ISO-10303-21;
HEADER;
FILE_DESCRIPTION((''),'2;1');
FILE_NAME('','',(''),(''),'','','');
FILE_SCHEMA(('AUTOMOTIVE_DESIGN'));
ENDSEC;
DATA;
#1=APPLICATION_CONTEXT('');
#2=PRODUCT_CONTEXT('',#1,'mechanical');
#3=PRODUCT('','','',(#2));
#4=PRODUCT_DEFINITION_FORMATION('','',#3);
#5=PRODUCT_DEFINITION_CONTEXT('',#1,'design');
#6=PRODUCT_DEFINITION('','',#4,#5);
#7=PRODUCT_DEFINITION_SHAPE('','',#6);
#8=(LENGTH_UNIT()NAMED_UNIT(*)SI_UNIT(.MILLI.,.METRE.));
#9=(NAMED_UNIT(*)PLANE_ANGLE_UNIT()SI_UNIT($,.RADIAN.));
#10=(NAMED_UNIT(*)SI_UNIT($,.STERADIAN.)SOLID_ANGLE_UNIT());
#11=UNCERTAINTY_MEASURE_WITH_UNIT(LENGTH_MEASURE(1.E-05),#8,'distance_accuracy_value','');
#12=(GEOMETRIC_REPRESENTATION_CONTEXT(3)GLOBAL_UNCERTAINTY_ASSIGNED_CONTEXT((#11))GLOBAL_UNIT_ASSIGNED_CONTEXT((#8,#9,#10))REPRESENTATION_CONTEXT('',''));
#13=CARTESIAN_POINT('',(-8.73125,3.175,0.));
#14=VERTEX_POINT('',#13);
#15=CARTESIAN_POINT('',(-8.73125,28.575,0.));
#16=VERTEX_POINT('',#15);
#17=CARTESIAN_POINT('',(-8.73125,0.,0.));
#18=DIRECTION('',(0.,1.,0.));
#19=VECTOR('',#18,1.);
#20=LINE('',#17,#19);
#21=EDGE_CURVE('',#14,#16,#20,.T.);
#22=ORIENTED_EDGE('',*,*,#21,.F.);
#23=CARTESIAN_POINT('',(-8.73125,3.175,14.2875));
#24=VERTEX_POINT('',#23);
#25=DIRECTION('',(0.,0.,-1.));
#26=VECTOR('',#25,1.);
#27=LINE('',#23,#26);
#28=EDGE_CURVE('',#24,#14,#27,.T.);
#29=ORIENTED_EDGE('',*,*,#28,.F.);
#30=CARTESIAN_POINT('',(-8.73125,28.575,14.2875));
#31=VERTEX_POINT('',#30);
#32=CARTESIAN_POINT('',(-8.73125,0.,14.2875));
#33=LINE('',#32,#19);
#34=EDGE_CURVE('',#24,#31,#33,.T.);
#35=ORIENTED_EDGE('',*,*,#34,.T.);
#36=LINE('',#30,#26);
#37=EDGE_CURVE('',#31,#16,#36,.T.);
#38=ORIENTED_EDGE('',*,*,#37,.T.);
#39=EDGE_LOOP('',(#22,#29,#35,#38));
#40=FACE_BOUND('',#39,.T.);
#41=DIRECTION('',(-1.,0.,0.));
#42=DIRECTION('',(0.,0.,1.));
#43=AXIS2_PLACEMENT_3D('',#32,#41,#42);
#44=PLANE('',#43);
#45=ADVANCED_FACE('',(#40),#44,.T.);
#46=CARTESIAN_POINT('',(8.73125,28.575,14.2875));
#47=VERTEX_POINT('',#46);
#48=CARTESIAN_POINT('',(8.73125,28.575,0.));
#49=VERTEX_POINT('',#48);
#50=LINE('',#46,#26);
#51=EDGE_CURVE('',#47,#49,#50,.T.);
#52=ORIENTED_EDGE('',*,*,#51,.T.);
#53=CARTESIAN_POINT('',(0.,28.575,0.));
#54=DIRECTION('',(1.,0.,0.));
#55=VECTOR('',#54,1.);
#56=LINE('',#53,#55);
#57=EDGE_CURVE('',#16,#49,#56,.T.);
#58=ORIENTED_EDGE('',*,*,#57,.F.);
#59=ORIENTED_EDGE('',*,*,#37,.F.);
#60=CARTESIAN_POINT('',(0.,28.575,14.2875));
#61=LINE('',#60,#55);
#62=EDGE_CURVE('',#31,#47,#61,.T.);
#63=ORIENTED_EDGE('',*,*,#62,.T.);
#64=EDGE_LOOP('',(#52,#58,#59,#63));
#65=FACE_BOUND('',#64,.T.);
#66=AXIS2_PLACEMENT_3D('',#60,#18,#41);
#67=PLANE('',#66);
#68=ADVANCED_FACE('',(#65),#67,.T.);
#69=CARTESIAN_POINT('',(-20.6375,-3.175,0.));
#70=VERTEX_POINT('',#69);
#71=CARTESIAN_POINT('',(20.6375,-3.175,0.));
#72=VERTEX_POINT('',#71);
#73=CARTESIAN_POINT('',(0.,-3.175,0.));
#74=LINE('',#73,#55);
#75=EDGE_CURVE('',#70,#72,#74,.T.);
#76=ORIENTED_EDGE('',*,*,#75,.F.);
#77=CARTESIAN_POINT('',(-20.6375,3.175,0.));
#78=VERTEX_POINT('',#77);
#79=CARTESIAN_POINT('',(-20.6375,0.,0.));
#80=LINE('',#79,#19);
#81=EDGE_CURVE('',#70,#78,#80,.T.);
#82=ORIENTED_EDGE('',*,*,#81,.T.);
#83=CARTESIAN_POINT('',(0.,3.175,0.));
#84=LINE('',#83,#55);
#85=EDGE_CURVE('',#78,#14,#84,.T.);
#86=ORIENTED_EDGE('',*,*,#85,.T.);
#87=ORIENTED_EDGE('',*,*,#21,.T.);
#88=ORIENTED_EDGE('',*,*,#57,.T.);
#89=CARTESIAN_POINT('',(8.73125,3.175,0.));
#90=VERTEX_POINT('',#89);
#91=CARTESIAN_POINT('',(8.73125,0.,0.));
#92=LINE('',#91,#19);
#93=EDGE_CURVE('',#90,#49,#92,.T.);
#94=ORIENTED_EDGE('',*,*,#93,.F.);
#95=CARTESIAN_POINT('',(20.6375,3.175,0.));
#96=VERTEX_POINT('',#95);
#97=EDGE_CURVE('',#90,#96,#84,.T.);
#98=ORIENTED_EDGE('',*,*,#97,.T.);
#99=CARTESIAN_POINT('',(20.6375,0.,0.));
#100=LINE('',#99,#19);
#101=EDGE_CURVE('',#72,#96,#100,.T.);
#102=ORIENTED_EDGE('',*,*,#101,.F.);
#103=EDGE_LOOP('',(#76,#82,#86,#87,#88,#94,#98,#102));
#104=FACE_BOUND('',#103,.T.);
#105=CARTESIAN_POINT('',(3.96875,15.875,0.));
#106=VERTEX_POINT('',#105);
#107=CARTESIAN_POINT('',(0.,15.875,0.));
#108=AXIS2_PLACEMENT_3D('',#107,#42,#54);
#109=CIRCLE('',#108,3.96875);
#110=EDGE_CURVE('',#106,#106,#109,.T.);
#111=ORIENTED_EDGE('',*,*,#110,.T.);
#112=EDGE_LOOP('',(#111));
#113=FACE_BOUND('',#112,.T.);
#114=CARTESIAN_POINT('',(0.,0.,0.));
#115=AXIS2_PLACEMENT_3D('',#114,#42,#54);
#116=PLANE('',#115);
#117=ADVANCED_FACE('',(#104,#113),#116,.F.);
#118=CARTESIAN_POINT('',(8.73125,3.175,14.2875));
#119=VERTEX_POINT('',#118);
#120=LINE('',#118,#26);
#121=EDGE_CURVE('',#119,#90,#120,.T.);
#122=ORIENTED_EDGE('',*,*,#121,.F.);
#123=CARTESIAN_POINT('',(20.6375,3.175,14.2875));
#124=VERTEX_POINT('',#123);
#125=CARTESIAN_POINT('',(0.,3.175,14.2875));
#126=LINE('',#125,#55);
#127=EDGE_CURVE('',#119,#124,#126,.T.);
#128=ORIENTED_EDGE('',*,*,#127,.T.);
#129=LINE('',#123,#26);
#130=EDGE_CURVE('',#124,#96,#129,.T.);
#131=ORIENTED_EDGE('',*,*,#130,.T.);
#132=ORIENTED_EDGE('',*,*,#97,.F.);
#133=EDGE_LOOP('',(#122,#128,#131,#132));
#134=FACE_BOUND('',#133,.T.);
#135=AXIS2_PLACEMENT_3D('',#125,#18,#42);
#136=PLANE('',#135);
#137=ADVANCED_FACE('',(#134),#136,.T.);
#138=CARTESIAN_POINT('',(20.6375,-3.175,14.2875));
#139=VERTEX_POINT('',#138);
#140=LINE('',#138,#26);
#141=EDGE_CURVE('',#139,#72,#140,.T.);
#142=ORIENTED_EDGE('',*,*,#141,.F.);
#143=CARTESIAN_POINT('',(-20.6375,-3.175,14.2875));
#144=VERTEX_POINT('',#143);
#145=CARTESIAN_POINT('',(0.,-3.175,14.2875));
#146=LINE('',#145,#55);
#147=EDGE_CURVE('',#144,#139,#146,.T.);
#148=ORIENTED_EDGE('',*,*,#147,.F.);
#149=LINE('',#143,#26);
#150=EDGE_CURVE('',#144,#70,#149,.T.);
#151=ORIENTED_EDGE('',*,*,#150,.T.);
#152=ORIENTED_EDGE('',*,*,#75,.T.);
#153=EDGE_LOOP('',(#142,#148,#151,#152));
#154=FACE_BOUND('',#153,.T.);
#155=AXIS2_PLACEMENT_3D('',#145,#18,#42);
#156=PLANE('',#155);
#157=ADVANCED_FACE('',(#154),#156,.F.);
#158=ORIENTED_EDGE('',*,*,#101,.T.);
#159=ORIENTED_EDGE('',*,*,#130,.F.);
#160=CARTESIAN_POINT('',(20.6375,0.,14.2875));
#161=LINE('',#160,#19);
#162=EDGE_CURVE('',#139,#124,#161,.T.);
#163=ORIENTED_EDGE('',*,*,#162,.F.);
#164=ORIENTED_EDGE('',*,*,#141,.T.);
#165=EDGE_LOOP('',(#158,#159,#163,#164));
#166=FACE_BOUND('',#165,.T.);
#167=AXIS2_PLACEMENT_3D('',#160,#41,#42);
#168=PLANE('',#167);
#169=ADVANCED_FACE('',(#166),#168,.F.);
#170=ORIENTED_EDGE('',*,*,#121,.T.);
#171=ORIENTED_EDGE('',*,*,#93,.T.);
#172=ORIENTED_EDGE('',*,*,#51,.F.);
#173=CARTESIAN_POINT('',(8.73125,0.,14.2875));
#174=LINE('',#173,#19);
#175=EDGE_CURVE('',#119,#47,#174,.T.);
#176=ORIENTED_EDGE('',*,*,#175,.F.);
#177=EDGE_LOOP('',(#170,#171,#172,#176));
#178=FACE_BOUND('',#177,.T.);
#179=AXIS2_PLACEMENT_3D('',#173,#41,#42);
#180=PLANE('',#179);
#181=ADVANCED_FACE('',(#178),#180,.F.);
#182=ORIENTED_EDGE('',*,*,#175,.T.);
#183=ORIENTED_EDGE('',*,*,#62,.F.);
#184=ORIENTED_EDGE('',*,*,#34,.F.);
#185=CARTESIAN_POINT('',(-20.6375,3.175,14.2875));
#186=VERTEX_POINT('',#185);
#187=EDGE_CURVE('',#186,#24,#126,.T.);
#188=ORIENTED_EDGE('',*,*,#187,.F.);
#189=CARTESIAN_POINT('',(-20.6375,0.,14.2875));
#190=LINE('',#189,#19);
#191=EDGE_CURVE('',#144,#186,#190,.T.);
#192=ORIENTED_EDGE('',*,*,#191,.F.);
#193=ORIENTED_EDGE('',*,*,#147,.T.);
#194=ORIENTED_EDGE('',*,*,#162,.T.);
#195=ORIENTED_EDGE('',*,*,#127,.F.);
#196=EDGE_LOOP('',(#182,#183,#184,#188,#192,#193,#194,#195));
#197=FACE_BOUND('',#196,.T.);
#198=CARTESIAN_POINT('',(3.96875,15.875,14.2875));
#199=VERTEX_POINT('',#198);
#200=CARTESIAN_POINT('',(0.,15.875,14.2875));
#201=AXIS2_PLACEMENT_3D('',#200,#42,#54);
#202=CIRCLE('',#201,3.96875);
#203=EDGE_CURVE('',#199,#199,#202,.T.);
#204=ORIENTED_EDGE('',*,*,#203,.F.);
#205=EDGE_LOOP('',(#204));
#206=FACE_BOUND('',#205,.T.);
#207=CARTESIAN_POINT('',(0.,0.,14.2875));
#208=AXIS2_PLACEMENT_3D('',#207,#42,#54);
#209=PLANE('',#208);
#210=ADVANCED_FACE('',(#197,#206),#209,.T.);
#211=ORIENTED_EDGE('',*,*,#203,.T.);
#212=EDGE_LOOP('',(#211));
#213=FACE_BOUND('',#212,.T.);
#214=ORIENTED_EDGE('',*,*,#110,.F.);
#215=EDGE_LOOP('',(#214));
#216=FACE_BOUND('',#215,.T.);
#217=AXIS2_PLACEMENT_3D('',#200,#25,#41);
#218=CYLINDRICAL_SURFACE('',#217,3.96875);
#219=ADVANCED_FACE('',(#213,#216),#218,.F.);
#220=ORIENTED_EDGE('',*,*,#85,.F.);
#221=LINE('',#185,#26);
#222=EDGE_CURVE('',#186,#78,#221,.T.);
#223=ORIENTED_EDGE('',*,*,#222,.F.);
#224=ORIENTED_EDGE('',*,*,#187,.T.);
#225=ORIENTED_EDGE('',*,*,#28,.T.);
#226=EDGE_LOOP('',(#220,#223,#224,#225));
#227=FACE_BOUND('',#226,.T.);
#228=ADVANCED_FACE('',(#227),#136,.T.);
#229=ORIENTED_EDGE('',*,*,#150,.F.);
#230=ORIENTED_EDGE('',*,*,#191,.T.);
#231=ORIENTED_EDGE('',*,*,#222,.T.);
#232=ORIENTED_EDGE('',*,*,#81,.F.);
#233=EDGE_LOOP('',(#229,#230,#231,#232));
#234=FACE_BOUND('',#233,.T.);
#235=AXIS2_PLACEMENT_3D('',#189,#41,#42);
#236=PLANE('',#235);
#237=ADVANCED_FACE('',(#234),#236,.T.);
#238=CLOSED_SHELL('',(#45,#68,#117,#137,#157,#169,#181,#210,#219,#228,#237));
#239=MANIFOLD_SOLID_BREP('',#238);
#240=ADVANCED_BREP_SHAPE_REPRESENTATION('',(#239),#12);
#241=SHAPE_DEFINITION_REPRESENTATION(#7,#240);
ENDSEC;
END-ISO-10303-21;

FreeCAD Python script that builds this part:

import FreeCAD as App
import Part
import Sketcher

V = App.Vector
Q = App.Units.Quantity


def add_polygon(sketch, points):
    """Adds a closed chain of lines whose ends are joined by coincident constraints."""
    first, n = sketch.GeometryCount, len(points)
    for a, b in zip(points, points[1:] + points[:1]):
        sketch.addGeometry(Part.LineSegment(App.Vector(*a, 0), App.Vector(*b, 0)), False)
    for i in range(n):
        sketch.addConstraint(Sketcher.Constraint("Coincident", first + i, 2, first + (i + 1) % n, 1))

doc = App.newDocument("Part")
body = doc.addObject("PartDesign::Body", "Body")

sketch1 = body.newObject("Sketcher::SketchObject", "Sketch")
sketch1.AttachmentSupport = (doc.getObject("XY_Plane"), [""])
sketch1.MapMode = "FlatFace"
add_polygon(sketch1, [(-20.6, 3.2), (-20.6, -3.2), (20.6, -3.2), (20.6, 3.2), (8.7, 3.2), (8.7, 28.6), (-8.7, 28.6), (-8.7, 3.2)])
sketch1.addGeometry(Part.Circle(V(0, 15.9, 0), V(0, 0, 1), 4), False)
sketch1.addConstraint([
    Sketcher.Constraint("Vertical", 0),
    Sketcher.Constraint("Horizontal", 1),
    Sketcher.Constraint("Vertical", 2),
    Sketcher.Constraint("Horizontal", 3),
    Sketcher.Constraint("Vertical", 4),
    Sketcher.Constraint("Horizontal", 5),
    Sketcher.Constraint("Vertical", 6),
    Sketcher.Constraint("Horizontal", 7),
    Sketcher.Constraint("Symmetric", 0, 2, 2, 2, -1, 1),
    Sketcher.Constraint("Symmetric", 3, 2, 6, 2, -2),
    Sketcher.Constraint("PointOnObject", 8, 3, -2),
    Sketcher.Constraint("DistanceY", 4, 1, 4, 2, Q("1 in")),
    Sketcher.Constraint("Diameter", 8, Q("0.3125 in")),
    Sketcher.Constraint("DistanceY", 0, 2, 0, 1, Q("0.25 in")),
    Sketcher.Constraint("DistanceY", 2, 2, 8, 3, Q("0.5 in")),
    Sketcher.Constraint("DistanceX", 1, 1, 1, 2, Q("1.625 in")),
    Sketcher.Constraint("DistanceX", 3, 2, 3, 1, Q("0.46875 in")),
])
pad1 = body.newObject("PartDesign::Pad", "Pad")
pad1.Profile = sketch1
pad1.Length = Q("0.5625 in")

doc.recompute()
